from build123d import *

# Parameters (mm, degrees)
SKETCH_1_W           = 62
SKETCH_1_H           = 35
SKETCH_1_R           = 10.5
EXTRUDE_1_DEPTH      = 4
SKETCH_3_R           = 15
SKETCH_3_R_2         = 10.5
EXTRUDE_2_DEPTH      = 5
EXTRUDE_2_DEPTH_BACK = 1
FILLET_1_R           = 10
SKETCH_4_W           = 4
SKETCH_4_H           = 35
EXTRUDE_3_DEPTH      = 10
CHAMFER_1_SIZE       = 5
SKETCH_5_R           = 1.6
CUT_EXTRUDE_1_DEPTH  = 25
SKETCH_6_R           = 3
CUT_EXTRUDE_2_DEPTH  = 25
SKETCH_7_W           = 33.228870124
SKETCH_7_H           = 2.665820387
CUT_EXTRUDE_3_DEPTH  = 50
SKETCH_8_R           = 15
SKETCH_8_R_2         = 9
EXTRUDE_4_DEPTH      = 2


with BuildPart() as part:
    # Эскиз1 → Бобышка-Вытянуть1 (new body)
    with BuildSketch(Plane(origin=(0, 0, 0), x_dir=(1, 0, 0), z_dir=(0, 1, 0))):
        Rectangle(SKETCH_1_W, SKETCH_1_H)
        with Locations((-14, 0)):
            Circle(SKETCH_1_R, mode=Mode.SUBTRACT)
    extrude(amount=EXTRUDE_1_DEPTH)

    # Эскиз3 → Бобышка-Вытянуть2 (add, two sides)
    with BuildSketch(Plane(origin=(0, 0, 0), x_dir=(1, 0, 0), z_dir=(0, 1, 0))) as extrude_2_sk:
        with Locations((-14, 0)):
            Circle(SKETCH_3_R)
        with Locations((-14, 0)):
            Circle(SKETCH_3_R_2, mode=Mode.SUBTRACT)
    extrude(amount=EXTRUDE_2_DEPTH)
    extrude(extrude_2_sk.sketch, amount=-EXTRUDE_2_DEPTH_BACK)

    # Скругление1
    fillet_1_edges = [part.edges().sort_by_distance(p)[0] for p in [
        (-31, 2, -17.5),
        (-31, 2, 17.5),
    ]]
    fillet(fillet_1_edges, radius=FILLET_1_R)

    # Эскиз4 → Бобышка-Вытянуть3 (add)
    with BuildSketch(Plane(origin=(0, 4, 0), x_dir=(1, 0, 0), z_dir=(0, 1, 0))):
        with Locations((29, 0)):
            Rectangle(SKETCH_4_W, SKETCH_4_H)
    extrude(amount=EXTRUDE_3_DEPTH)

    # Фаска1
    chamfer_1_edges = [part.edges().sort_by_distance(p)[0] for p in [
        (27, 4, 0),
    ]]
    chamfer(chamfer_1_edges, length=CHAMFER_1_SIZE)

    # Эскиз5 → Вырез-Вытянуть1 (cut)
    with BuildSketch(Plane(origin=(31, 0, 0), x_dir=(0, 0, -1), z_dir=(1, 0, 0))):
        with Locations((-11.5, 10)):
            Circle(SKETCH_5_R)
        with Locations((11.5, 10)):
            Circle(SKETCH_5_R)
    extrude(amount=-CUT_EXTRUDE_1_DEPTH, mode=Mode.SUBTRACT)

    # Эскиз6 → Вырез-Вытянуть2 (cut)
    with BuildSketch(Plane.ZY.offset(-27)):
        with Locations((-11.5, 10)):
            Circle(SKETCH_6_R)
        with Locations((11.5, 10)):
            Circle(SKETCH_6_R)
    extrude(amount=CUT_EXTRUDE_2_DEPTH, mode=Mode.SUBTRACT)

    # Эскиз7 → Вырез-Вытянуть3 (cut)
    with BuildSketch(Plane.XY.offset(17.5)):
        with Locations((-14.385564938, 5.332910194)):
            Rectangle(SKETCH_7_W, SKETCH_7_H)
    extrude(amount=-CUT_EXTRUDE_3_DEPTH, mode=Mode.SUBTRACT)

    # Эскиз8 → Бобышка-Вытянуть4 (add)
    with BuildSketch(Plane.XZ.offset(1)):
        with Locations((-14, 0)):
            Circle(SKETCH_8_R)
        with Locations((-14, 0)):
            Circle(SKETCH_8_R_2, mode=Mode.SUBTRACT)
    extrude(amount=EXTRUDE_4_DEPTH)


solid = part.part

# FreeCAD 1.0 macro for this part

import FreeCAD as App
import Part
import Sketcher

V = App.Vector


def edges_at(feature, points):
    """Names of the edges that pass closest to the given points."""
    edges = feature.Shape.Edges
    near = lambda p: min(range(len(edges)), key=lambda i: edges[i].distToShape(Part.Vertex(*p))[0])
    return sorted({f"Edge{near(p) + 1}" for p in points})


def add_polygon(sketch, points):
    """Adds a closed chain of lines whose ends are joined by coincident constraints."""
    first, n = sketch.GeometryCount, len(points)
    for a, b in zip(points, points[1:] + points[:1]):
        sketch.addGeometry(Part.LineSegment(App.Vector(*a, 0), App.Vector(*b, 0)), False)
    for i in range(n):
        sketch.addConstraint(Sketcher.Constraint("Coincident", first + i, 2, first + (i + 1) % n, 1))

doc = App.newDocument("Part")
body = doc.addObject("PartDesign::Body", "Body")

# Sketch on XZ plane
sketch1 = body.newObject("Sketcher::SketchObject", "Sketch")
sketch1.AttachmentSupport = (doc.getObject("XZ_Plane"), [""])
sketch1.MapMode = "FlatFace"
add_polygon(sketch1, [(-31, -17.5), (-31, 17.5), (31, 17.5), (31, -17.5)])  # lines 0-3
sketch1.addGeometry(Part.Circle(V(-14, 0, 0), V(0, 0, 1), 10.5), False)  # 4
sketch1.addConstraint(Sketcher.Constraint("Vertical", 0))
sketch1.addConstraint(Sketcher.Constraint("Horizontal", 1))
sketch1.addConstraint(Sketcher.Constraint("Vertical", 2))
sketch1.addConstraint(Sketcher.Constraint("Horizontal", 3))
sketch1.addConstraint(Sketcher.Constraint("Symmetric", 0, 2, 2, 2, -1, 1))
sketch1.addConstraint(Sketcher.Constraint("PointOnObject", 4, 3, -1))
sketch1.addConstraint(Sketcher.Constraint("Diameter", 4, 21.0))
sketch1.addConstraint(Sketcher.Constraint("DistanceX", 1, 1, 1, 2, 62.0))
sketch1.addConstraint(Sketcher.Constraint("DistanceY", 0, 1, 0, 2, 35.0))
sketch1.addConstraint(Sketcher.Constraint("DistanceX", 4, 3, -1, 1, 14.0))
pad1 = body.newObject("PartDesign::Pad", "Pad")
pad1.Profile = sketch1
pad1.Length = 4
pad1.Reversed = True

# Sketch on XZ plane
sketch2 = body.newObject("Sketcher::SketchObject", "Sketch001")
sketch2.AttachmentSupport = (doc.getObject("XZ_Plane"), [""])
sketch2.MapMode = "FlatFace"
sketch2.addGeometry(Part.Circle(V(-14, 0, 0), V(0, 0, 1), 15), False)
sketch2.addGeometry(Part.Circle(V(-14, 0, 0), V(0, 0, 1), 10.5), False)
sketch2.addConstraint(Sketcher.Constraint("Coincident", 1, 3, 0, 3))
sketch2.addConstraint(Sketcher.Constraint("PointOnObject", 0, 3, -1))
sketch2.addConstraint(Sketcher.Constraint("Diameter", 0, 30.0))
sketch2.addConstraint(Sketcher.Constraint("Diameter", 1, 21.0))
sketch2.addConstraint(Sketcher.Constraint("DistanceX", 0, 3, -1, 1, 14.0))
pad2 = body.newObject("PartDesign::Pad", "Pad001")
pad2.Profile = sketch2
pad2.Type = "TwoLengths"
pad2.Length = 5
pad2.Length2 = 1
pad2.Reversed = True
doc.recompute()

fillet = body.newObject("PartDesign::Fillet", "Fillet")
fillet.Base = (pad2, edges_at(pad2, [(-31, 2, -17.5), (-31, 2, 17.5)]))
fillet.Radius = 10

# Sketch on XZ plane
sketch3 = body.newObject("Sketcher::SketchObject", "Sketch002")
sketch3.AttachmentSupport = (doc.getObject("XZ_Plane"), [""])
sketch3.MapMode = "FlatFace"
sketch3.AttachmentOffset = App.Placement(V(0, 0, -4), App.Rotation())
add_polygon(sketch3, [(27, -17.5), (27, 17.5), (31, 17.5), (31, -17.5)])  # lines 0-3
sketch3.addConstraint(Sketcher.Constraint("Vertical", 0))
sketch3.addConstraint(Sketcher.Constraint("Horizontal", 1))
sketch3.addConstraint(Sketcher.Constraint("Vertical", 2))
sketch3.addConstraint(Sketcher.Constraint("Horizontal", 3))
sketch3.addConstraint(Sketcher.Constraint("DistanceX", 1, 1, 1, 2, 4.0))
sketch3.addConstraint(Sketcher.Constraint("DistanceY", 0, 1, 0, 2, 35.0))
sketch3.addConstraint(Sketcher.Constraint("DistanceX", -1, 1, 0, 2, 27.0))
sketch3.addConstraint(Sketcher.Constraint("DistanceY", -1, 1, 0, 2, 17.5))
pad3 = body.newObject("PartDesign::Pad", "Pad002")
pad3.Profile = sketch3
pad3.Length = 10
pad3.Reversed = True
doc.recompute()

chamfer = body.newObject("PartDesign::Chamfer", "Chamfer")
chamfer.Base = (pad3, edges_at(pad3, [(27, 4, 0)]))
chamfer.Size = 5

# Sketch on YZ plane
sketch4 = body.newObject("Sketcher::SketchObject", "Sketch003")
sketch4.AttachmentSupport = (doc.getObject("YZ_Plane"), [""])
sketch4.MapMode = "FlatFace"
sketch4.AttachmentOffset = App.Placement(V(0, 0, 31), App.Rotation())
sketch4.addGeometry(Part.Circle(V(10, 11.5, 0), V(0, 0, 1), 1.6), False)
sketch4.addGeometry(Part.Circle(V(10, -11.5, 0), V(0, 0, 1), 1.6), False)
sketch4.addConstraint(Sketcher.Constraint("Equal", 0, 1))
sketch4.addConstraint(Sketcher.Constraint("Symmetric", 0, 3, 1, 3, -1))
sketch4.addConstraint(Sketcher.Constraint("Diameter", 0, 3.2))
sketch4.addConstraint(Sketcher.Constraint("DistanceX", -1, 1, 0, 3, 10.0))
sketch4.addConstraint(Sketcher.Constraint("DistanceY", 1, 3, 0, 3, 23.0))
pocket1 = body.newObject("PartDesign::Pocket", "Pocket")
pocket1.Profile = sketch4
pocket1.Length = 25

# Sketch on YZ plane
sketch5 = body.newObject("Sketcher::SketchObject", "Sketch004")
sketch5.AttachmentSupport = (doc.getObject("YZ_Plane"), [""])
sketch5.MapMode = "FlatFace"
sketch5.AttachmentOffset = App.Placement(V(0, 0, 27), App.Rotation())
sketch5.addGeometry(Part.Circle(V(10, -11.5, 0), V(0, 0, 1), 3), False)
sketch5.addGeometry(Part.Circle(V(10, 11.5, 0), V(0, 0, 1), 3), False)
sketch5.addConstraint(Sketcher.Constraint("Equal", 0, 1))
sketch5.addConstraint(Sketcher.Constraint("Symmetric", 0, 3, 1, 3, -1))
sketch5.addConstraint(Sketcher.Constraint("Diameter", 0, 6.0))
sketch5.addConstraint(Sketcher.Constraint("DistanceX", -1, 1, 0, 3, 10.0))
sketch5.addConstraint(Sketcher.Constraint("DistanceY", 0, 3, 1, 3, 23.0))
pocket2 = body.newObject("PartDesign::Pocket", "Pocket001")
pocket2.Profile = sketch5
pocket2.Length = 25

# Sketch on XY plane
sketch6 = body.newObject("Sketcher::SketchObject", "Sketch005")
sketch6.AttachmentSupport = (doc.getObject("XY_Plane"), [""])
sketch6.MapMode = "FlatFace"
sketch6.AttachmentOffset = App.Placement(V(0, 0, 17.5), App.Rotation())
add_polygon(sketch6, [(-31, 6.66582), (-31, 4), (2.22887, 4), (2.22887, 6.66582)])  # lines 0-3
sketch6.addConstraint(Sketcher.Constraint("Vertical", 0))
sketch6.addConstraint(Sketcher.Constraint("Horizontal", 1))
sketch6.addConstraint(Sketcher.Constraint("Vertical", 2))
sketch6.addConstraint(Sketcher.Constraint("Horizontal", 3))
sketch6.addConstraint(Sketcher.Constraint("DistanceX", 0, 2, -1, 1, 31.0))
sketch6.addConstraint(Sketcher.Constraint("DistanceY", -1, 1, 0, 2, 4.0))
sketch6.addConstraint(Sketcher.Constraint("DistanceX", 1, 1, 1, 2, 33.22887))
sketch6.addConstraint(Sketcher.Constraint("DistanceY", 0, 2, 0, 1, 2.66582))
pocket3 = body.newObject("PartDesign::Pocket", "Pocket002")
pocket3.Profile = sketch6
pocket3.Length = 50

# Sketch on XZ plane
sketch7 = body.newObject("Sketcher::SketchObject", "Sketch006")
sketch7.AttachmentSupport = (doc.getObject("XZ_Plane"), [""])
sketch7.MapMode = "FlatFace"
sketch7.AttachmentOffset = App.Placement(V(0, 0, 1), App.Rotation())
sketch7.addGeometry(Part.Circle(V(-14, 0, 0), V(0, 0, 1), 15), False)
sketch7.addGeometry(Part.Circle(V(-14, 0, 0), V(0, 0, 1), 9), False)
sketch7.addConstraint(Sketcher.Constraint("Coincident", 1, 3, 0, 3))
sketch7.addConstraint(Sketcher.Constraint("PointOnObject", 0, 3, -1))
sketch7.addConstraint(Sketcher.Constraint("Diameter", 0, 30.0))
sketch7.addConstraint(Sketcher.Constraint("Diameter", 1, 18.0))
sketch7.addConstraint(Sketcher.Constraint("DistanceX", 0, 3, -1, 1, 14.0))
pad4 = body.newObject("PartDesign::Pad", "Pad003")
pad4.Profile = sketch7
pad4.Length = 2

doc.recompute()
